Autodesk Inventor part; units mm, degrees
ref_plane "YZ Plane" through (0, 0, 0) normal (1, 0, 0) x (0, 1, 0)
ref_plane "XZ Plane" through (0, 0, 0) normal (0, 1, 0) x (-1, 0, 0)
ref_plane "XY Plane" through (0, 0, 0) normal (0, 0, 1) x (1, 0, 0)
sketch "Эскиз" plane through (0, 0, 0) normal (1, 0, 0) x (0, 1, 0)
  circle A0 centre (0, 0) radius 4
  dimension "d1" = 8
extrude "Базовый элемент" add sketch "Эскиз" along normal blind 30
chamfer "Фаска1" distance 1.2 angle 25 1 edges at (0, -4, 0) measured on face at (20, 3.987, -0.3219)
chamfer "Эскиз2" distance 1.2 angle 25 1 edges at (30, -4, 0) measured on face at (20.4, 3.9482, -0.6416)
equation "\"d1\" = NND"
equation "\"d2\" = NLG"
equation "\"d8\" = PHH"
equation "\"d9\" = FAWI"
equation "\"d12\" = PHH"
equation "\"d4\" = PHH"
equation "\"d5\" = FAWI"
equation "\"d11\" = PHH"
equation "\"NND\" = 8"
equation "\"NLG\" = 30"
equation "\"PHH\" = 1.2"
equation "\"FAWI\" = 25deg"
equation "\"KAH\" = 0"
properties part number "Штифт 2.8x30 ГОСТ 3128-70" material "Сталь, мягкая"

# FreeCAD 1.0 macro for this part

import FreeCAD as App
import Part
import Sketcher


def edges_at(feature, points):
    """Names of the edges that pass closest to the given points."""
    edges = feature.Shape.Edges
    near = lambda p: min(range(len(edges)), key=lambda i: edges[i].distToShape(Part.Vertex(*p))[0])
    return sorted({f"Edge{near(p) + 1}" for p in points})

doc = App.newDocument("Part")
body = doc.addObject("PartDesign::Body", "Body")

# Sketch on YZ plane
sketch1 = body.newObject("Sketcher::SketchObject", "Sketch")
sketch1.AttachmentSupport = (doc.getObject("YZ_Plane"), [""])
sketch1.MapMode = "FlatFace"
sketch1.addGeometry(Part.Circle(App.Vector(0, 0, 0), App.Vector(0, 0, 1), 4), False)
sketch1.addConstraint([
    Sketcher.Constraint("Coincident", 0, 3, -1, 1),
    Sketcher.Constraint("Diameter", 0, 8.0),
])
pad1 = body.newObject("PartDesign::Pad", "Pad")
pad1.Profile = sketch1
pad1.Length = 30
doc.recompute()

chamfer = body.newObject("PartDesign::Chamfer", "Chamfer")
chamfer.Base = (pad1, edges_at(pad1, [(0, -4, 0)]))
chamfer.ChamferType = "Distance and Angle"
chamfer.Size = 1.2
chamfer.Angle = 25
doc.recompute()

chamfer2 = body.newObject("PartDesign::Chamfer", "Chamfer001")
chamfer2.Base = (chamfer, edges_at(chamfer, [(30, -4, 0)]))
chamfer2.ChamferType = "Distance and Angle"
chamfer2.Size = 1.2
chamfer2.Angle = 25

doc.recompute()
